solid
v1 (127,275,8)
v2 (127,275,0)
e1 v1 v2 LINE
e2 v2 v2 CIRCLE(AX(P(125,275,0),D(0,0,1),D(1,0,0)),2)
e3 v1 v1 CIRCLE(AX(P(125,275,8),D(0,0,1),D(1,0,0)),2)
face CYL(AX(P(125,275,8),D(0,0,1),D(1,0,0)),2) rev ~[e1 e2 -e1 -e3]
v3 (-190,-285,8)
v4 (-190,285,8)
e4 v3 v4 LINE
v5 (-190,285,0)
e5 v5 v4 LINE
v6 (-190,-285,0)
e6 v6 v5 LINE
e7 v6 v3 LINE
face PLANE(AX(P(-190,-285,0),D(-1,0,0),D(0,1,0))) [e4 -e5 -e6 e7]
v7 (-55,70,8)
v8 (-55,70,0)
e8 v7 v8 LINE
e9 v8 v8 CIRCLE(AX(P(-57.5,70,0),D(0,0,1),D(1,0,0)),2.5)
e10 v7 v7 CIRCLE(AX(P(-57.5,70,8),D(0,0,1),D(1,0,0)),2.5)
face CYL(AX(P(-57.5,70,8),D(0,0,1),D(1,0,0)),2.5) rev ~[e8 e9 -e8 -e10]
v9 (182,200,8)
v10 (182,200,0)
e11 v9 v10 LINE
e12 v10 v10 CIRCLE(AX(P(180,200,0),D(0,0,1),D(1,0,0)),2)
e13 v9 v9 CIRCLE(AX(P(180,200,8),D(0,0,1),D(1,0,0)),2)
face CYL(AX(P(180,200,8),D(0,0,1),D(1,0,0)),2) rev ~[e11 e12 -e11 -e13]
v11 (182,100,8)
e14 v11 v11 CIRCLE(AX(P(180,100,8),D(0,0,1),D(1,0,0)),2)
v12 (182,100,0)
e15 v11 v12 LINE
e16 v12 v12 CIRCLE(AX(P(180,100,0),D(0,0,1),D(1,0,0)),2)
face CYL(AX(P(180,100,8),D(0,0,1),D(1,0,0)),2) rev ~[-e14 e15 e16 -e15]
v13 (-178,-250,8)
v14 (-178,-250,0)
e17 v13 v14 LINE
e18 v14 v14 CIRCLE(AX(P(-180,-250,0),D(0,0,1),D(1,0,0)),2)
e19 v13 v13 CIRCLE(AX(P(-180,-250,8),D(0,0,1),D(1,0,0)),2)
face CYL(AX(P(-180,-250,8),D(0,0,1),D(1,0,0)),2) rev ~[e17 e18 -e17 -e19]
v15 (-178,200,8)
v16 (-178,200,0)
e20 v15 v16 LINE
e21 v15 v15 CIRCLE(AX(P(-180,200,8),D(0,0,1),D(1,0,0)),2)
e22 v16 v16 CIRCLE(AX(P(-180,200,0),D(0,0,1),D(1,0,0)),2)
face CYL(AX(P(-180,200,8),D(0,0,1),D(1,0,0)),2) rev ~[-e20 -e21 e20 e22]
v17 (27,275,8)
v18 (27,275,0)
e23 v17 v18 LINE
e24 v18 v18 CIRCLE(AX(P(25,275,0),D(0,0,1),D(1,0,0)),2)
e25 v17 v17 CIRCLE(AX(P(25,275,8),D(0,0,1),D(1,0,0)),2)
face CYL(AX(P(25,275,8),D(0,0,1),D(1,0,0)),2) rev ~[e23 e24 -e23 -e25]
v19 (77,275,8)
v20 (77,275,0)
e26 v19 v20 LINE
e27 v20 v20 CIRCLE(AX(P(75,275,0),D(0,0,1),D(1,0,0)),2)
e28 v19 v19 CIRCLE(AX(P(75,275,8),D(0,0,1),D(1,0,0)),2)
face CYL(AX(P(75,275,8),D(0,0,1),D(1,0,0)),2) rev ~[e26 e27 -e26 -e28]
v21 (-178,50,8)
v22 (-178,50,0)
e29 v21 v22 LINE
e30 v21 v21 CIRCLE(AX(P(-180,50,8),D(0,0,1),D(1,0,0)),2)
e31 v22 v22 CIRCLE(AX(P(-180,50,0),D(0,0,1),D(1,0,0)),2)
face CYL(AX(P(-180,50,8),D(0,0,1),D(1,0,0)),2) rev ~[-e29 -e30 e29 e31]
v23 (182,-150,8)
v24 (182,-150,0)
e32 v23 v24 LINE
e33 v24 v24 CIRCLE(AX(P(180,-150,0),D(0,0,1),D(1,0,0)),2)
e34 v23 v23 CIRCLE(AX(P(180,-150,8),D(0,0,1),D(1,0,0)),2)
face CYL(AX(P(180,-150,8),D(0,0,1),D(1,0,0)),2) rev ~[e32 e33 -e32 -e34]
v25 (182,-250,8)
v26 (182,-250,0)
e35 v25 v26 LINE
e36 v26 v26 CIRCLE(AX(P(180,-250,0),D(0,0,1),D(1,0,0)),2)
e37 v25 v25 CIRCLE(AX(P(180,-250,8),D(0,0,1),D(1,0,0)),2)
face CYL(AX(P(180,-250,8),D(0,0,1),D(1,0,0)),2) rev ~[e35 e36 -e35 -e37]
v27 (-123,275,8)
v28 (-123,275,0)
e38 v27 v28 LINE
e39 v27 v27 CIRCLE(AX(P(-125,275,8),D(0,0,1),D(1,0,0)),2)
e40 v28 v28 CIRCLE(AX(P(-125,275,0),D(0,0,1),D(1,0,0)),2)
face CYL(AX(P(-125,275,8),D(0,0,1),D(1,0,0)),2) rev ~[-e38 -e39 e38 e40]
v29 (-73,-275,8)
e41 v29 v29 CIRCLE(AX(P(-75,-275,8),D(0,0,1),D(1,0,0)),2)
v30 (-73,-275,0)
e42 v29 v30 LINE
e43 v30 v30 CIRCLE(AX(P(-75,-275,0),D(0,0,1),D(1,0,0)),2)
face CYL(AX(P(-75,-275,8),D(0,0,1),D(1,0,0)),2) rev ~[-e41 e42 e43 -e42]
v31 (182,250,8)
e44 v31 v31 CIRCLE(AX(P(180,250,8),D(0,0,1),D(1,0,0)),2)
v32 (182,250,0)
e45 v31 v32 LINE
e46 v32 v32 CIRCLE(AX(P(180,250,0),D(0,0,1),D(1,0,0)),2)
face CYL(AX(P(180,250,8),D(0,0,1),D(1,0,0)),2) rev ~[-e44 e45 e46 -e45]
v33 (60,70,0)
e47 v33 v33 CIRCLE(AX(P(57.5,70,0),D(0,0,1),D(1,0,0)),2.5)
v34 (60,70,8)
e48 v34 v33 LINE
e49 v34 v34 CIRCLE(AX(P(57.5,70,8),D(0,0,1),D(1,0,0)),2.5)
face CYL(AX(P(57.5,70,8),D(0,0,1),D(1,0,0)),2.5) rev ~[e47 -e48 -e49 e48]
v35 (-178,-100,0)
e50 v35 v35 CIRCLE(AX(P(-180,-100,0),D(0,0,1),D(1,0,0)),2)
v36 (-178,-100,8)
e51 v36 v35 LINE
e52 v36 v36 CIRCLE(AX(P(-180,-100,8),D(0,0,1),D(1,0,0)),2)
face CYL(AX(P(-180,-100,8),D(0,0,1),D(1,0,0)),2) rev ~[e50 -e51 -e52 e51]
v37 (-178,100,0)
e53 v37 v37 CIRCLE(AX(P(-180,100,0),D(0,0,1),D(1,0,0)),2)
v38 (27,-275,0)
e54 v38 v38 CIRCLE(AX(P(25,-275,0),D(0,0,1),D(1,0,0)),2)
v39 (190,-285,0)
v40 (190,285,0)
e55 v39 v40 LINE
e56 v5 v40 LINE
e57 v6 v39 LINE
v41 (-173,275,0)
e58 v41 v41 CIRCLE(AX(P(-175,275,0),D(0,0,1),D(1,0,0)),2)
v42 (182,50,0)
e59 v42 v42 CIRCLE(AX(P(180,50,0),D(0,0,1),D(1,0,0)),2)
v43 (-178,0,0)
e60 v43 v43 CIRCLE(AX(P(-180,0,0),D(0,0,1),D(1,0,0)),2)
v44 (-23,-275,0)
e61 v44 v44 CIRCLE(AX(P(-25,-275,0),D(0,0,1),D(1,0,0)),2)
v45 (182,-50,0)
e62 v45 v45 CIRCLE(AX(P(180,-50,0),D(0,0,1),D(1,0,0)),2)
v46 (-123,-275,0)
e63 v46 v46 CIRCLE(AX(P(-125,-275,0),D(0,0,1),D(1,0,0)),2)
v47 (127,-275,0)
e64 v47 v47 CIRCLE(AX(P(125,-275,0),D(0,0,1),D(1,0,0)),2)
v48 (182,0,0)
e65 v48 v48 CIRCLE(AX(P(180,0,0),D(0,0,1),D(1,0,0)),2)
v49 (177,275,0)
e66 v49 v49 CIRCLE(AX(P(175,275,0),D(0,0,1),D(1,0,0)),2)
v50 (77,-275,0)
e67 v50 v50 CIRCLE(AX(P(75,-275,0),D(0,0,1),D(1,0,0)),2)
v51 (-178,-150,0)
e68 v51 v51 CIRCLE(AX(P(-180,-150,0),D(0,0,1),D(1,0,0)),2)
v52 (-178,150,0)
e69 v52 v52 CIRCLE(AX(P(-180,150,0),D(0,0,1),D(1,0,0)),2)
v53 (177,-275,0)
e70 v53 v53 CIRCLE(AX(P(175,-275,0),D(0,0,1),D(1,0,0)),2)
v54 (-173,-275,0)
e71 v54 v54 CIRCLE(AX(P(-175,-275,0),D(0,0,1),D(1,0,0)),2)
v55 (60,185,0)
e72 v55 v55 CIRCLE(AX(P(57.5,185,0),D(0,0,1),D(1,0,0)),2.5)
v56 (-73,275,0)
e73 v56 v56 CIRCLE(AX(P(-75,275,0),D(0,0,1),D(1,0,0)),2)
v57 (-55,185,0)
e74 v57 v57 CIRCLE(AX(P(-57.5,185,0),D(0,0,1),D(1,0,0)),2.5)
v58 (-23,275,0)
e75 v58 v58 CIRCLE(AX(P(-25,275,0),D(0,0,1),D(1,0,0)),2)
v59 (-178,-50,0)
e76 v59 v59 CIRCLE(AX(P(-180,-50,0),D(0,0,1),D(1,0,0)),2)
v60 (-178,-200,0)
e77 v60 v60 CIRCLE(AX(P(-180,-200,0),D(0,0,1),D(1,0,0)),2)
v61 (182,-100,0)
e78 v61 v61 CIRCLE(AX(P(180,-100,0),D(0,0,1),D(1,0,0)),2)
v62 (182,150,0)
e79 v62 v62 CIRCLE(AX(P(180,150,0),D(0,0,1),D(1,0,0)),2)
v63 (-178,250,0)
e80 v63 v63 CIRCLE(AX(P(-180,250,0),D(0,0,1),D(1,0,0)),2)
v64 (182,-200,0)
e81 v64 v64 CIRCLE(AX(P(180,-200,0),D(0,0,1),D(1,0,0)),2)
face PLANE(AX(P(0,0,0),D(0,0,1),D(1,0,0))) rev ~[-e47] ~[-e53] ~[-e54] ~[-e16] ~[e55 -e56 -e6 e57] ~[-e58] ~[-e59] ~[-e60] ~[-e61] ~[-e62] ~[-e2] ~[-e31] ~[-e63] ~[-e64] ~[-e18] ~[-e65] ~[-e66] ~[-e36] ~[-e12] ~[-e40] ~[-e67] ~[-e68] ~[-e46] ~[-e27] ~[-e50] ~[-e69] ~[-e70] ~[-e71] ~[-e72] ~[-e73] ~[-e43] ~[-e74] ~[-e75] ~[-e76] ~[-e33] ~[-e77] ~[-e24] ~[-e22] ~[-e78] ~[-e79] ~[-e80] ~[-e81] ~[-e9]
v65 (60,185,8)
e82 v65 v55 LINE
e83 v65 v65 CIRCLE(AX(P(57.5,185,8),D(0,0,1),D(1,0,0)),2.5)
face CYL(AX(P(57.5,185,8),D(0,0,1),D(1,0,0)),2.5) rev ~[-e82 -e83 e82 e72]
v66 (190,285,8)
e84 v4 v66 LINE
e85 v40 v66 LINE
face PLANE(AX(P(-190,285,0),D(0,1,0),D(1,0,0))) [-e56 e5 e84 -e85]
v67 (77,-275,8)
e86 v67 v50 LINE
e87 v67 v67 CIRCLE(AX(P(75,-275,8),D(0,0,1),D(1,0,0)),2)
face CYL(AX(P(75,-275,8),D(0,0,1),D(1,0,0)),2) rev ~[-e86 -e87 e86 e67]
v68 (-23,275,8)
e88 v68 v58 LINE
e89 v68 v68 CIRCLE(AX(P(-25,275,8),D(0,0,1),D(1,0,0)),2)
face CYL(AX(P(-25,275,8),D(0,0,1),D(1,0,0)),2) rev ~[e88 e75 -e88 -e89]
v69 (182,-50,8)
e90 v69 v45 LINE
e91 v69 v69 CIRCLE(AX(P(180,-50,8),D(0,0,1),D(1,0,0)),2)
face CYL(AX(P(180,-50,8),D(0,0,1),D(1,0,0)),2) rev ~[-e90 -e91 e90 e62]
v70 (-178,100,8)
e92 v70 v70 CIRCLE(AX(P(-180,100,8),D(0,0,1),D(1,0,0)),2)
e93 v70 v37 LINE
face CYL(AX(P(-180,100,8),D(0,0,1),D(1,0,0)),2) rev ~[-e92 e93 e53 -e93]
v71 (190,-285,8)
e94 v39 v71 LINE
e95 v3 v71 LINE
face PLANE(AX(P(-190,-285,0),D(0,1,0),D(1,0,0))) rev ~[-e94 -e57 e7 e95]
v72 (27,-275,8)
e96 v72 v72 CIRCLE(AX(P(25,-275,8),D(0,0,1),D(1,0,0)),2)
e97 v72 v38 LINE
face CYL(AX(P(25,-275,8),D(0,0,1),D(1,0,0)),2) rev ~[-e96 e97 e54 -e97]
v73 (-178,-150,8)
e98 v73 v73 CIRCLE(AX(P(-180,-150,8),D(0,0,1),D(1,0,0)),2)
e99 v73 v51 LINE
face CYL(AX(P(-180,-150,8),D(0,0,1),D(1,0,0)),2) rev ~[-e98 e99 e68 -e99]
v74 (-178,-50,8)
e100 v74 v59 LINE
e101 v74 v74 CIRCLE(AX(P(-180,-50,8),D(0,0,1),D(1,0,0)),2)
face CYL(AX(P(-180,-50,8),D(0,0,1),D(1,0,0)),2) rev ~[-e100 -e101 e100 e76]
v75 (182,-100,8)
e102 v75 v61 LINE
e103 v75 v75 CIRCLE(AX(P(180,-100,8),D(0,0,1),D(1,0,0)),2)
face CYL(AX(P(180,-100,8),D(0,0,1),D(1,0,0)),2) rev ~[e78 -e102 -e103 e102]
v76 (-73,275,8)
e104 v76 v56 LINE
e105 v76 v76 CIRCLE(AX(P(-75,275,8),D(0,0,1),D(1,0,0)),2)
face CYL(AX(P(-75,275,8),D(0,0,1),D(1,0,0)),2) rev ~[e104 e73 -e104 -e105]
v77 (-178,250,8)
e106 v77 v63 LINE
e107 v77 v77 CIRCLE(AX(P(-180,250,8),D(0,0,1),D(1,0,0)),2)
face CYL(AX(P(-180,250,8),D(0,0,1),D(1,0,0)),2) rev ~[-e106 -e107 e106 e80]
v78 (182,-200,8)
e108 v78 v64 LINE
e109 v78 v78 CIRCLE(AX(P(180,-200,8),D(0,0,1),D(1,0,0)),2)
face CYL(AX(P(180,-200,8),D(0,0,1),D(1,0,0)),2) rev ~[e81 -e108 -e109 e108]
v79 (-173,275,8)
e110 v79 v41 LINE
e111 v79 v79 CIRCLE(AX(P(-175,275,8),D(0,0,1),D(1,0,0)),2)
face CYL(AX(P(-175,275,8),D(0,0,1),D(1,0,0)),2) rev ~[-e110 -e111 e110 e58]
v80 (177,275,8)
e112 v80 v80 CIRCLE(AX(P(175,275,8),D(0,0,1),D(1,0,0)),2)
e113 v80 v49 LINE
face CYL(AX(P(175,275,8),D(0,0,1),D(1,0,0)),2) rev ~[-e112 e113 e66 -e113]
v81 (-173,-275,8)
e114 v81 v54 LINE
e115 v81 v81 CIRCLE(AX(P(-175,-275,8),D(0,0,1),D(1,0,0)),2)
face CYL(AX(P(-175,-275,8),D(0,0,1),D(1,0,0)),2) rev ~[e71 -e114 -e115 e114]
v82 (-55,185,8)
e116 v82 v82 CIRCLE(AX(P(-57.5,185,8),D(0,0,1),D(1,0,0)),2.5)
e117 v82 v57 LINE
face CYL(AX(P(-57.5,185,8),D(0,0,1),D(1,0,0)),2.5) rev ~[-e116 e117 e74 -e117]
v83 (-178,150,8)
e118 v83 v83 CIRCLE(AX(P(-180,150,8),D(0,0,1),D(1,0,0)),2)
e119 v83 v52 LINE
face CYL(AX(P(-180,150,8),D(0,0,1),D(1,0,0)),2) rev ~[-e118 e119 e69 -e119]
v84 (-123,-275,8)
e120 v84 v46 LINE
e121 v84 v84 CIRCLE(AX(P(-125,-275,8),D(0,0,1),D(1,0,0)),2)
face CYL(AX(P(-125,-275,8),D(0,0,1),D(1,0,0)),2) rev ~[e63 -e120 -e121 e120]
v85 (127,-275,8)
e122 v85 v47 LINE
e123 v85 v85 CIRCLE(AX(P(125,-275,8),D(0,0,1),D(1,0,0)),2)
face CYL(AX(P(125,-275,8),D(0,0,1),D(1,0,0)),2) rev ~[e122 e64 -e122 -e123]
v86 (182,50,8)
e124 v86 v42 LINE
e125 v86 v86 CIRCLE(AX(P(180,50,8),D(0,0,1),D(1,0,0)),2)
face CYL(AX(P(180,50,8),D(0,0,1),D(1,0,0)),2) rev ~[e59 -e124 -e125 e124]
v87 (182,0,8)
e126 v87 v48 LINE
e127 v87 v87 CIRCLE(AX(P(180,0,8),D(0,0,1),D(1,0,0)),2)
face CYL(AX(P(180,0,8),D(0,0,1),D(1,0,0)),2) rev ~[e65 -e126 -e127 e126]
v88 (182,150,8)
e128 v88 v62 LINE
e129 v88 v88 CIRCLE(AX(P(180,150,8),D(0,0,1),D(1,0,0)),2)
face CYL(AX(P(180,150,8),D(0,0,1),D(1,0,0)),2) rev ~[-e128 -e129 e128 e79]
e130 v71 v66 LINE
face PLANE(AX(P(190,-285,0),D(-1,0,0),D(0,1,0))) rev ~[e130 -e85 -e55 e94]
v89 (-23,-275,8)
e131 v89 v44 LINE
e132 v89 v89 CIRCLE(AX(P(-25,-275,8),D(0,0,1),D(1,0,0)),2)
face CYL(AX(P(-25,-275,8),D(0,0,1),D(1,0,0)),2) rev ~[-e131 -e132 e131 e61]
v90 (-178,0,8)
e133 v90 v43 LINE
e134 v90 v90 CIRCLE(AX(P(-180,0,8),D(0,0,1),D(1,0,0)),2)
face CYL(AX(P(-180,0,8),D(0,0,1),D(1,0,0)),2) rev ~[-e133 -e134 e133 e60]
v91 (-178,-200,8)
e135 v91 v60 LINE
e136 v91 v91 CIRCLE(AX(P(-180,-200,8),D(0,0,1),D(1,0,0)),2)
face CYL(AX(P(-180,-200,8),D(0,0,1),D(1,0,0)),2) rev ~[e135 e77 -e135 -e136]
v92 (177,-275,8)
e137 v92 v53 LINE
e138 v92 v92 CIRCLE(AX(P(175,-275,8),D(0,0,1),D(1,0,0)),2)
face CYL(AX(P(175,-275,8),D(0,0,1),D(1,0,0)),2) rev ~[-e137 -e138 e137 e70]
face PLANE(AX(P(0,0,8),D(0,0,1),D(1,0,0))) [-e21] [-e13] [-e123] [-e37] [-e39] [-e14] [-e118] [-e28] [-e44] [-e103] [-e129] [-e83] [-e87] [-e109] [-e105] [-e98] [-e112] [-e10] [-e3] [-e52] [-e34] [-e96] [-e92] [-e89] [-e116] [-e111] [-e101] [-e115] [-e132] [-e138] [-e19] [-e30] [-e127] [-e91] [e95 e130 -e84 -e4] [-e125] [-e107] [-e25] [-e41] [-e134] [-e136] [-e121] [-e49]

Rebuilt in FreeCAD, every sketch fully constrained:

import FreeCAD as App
import Part
import Sketcher

V = App.Vector


def add_polygon(sketch, points):
    """Adds a closed chain of lines whose ends are joined by coincident constraints."""
    first, n = sketch.GeometryCount, len(points)
    for a, b in zip(points, points[1:] + points[:1]):
        sketch.addGeometry(Part.LineSegment(App.Vector(*a, 0), App.Vector(*b, 0)), False)
    for i in range(n):
        sketch.addConstraint(Sketcher.Constraint("Coincident", first + i, 2, first + (i + 1) % n, 1))

doc = App.newDocument("Part")
body = doc.addObject("PartDesign::Body", "Body")

sketch1 = body.newObject("Sketcher::SketchObject", "Sketch")
sketch1.AttachmentSupport = (doc.getObject("XY_Plane"), [""])
sketch1.MapMode = "FlatFace"
add_polygon(sketch1, [(-190, 285), (-190, -285), (190, -285), (190, 285)])
sketch1.addConstraint([
    Sketcher.Constraint("Vertical", 0),
    Sketcher.Constraint("Horizontal", 1),
    Sketcher.Constraint("Vertical", 2),
    Sketcher.Constraint("Horizontal", 3),
    Sketcher.Constraint("Symmetric", 0, 2, 2, 2, -1, 1),
    Sketcher.Constraint("DistanceX", 1, 1, 1, 2, 380.0),
    Sketcher.Constraint("DistanceY", 0, 2, 0, 1, 570.0),
])
pad1 = body.newObject("PartDesign::Pad", "Pad")
pad1.Profile = sketch1
pad1.Length = 8

sketch2 = body.newObject("Sketcher::SketchObject", "Sketch001")
sketch2.AttachmentSupport = (doc.getObject("XY_Plane"), [""])
sketch2.MapMode = "FlatFace"
sketch2.AttachmentOffset = App.Placement(V(0, 0, 8), App.Rotation())
sketch2.addGeometry(Part.Circle(V(-180, 250, 0), V(0, 0, 1), 2), False)
sketch2.addConstraint([
    Sketcher.Constraint("Diameter", 0, 4.0),
    Sketcher.Constraint("DistanceX", 0, 3, -1, 1, 180.0),
    Sketcher.Constraint("DistanceY", -1, 1, 0, 3, 250.0),
])
pocket1 = body.newObject("PartDesign::Pocket", "Pocket")
pocket1.Profile = sketch2
pocket1.Type = "UpToFirst"

sketch3 = body.newObject("Sketcher::SketchObject", "Sketch002")
sketch3.AttachmentSupport = (doc.getObject("XY_Plane"), [""])
sketch3.MapMode = "FlatFace"
sketch3.AttachmentOffset = App.Placement(V(0, 0, 8), App.Rotation())
sketch3.addGeometry(Part.Circle(V(-180, 200, 0), V(0, 0, 1), 2), False)
sketch3.addConstraint([
    Sketcher.Constraint("Diameter", 0, 4.0),
    Sketcher.Constraint("DistanceX", 0, 3, -1, 1, 180.0),
    Sketcher.Constraint("DistanceY", -1, 1, 0, 3, 200.0),
])
pocket2 = body.newObject("PartDesign::Pocket", "Pocket001")
pocket2.Profile = sketch3
pocket2.Type = "UpToFirst"

sketch4 = body.newObject("Sketcher::SketchObject", "Sketch003")
sketch4.AttachmentSupport = (doc.getObject("XY_Plane"), [""])
sketch4.MapMode = "FlatFace"
sketch4.AttachmentOffset = App.Placement(V(0, 0, 8), App.Rotation())
sketch4.addGeometry(Part.Circle(V(-180, 150, 0), V(0, 0, 1), 2), False)
sketch4.addConstraint([
    Sketcher.Constraint("Diameter", 0, 4.0),
    Sketcher.Constraint("DistanceX", 0, 3, -1, 1, 180.0),
    Sketcher.Constraint("DistanceY", -1, 1, 0, 3, 150.0),
])
pocket3 = body.newObject("PartDesign::Pocket", "Pocket002")
pocket3.Profile = sketch4
pocket3.Type = "UpToFirst"

sketch5 = body.newObject("Sketcher::SketchObject", "Sketch004")
sketch5.AttachmentSupport = (doc.getObject("XY_Plane"), [""])
sketch5.MapMode = "FlatFace"
sketch5.AttachmentOffset = App.Placement(V(0, 0, 8), App.Rotation())
sketch5.addGeometry(Part.Circle(V(-180, 100, 0), V(0, 0, 1), 2), False)
sketch5.addConstraint([
    Sketcher.Constraint("Diameter", 0, 4.0),
    Sketcher.Constraint("DistanceX", 0, 3, -1, 1, 180.0),
    Sketcher.Constraint("DistanceY", -1, 1, 0, 3, 100.0),
])
pocket4 = body.newObject("PartDesign::Pocket", "Pocket003")
pocket4.Profile = sketch5
pocket4.Type = "UpToFirst"

sketch6 = body.newObject("Sketcher::SketchObject", "Sketch005")
sketch6.AttachmentSupport = (doc.getObject("XY_Plane"), [""])
sketch6.MapMode = "FlatFace"
sketch6.AttachmentOffset = App.Placement(V(0, 0, 8), App.Rotation())
sketch6.addGeometry(Part.Circle(V(-180, 50, 0), V(0, 0, 1), 2), False)
sketch6.addConstraint([
    Sketcher.Constraint("Diameter", 0, 4.0),
    Sketcher.Constraint("DistanceX", 0, 3, -1, 1, 180.0),
    Sketcher.Constraint("DistanceY", -1, 1, 0, 3, 50.0),
])
pocket5 = body.newObject("PartDesign::Pocket", "Pocket004")
pocket5.Profile = sketch6
pocket5.Type = "UpToFirst"

sketch7 = body.newObject("Sketcher::SketchObject", "Sketch006")
sketch7.AttachmentSupport = (doc.getObject("XY_Plane"), [""])
sketch7.MapMode = "FlatFace"
sketch7.AttachmentOffset = App.Placement(V(0, 0, 8), App.Rotation())
sketch7.addGeometry(Part.Circle(V(-180, 0, 0), V(0, 0, 1), 2), False)
sketch7.addConstraint([
    Sketcher.Constraint("PointOnObject", 0, 3, -1),
    Sketcher.Constraint("Diameter", 0, 4.0),
    Sketcher.Constraint("DistanceX", 0, 3, -1, 1, 180.0),
])
pocket6 = body.newObject("PartDesign::Pocket", "Pocket005")
pocket6.Profile = sketch7
pocket6.Type = "UpToFirst"

sketch8 = body.newObject("Sketcher::SketchObject", "Sketch007")
sketch8.AttachmentSupport = (doc.getObject("XY_Plane"), [""])
sketch8.MapMode = "FlatFace"
sketch8.AttachmentOffset = App.Placement(V(0, 0, 8), App.Rotation())
sketch8.addGeometry(Part.Circle(V(-180, -50, 0), V(0, 0, 1), 2), False)
sketch8.addConstraint([
    Sketcher.Constraint("Diameter", 0, 4.0),
    Sketcher.Constraint("DistanceX", 0, 3, -1, 1, 180.0),
    Sketcher.Constraint("DistanceY", 0, 3, -1, 1, 50.0),
])
pocket7 = body.newObject("PartDesign::Pocket", "Pocket006")
pocket7.Profile = sketch8
pocket7.Type = "UpToFirst"

sketch9 = body.newObject("Sketcher::SketchObject", "Sketch008")
sketch9.AttachmentSupport = (doc.getObject("XY_Plane"), [""])
sketch9.MapMode = "FlatFace"
sketch9.AttachmentOffset = App.Placement(V(0, 0, 8), App.Rotation())
sketch9.addGeometry(Part.Circle(V(-180, -100, 0), V(0, 0, 1), 2), False)
sketch9.addConstraint([
    Sketcher.Constraint("Diameter", 0, 4.0),
    Sketcher.Constraint("DistanceX", 0, 3, -1, 1, 180.0),
    Sketcher.Constraint("DistanceY", 0, 3, -1, 1, 100.0),
])
pocket8 = body.newObject("PartDesign::Pocket", "Pocket007")
pocket8.Profile = sketch9
pocket8.Type = "UpToFirst"

sketch10 = body.newObject("Sketcher::SketchObject", "Sketch009")
sketch10.AttachmentSupport = (doc.getObject("XY_Plane"), [""])
sketch10.MapMode = "FlatFace"
sketch10.AttachmentOffset = App.Placement(V(0, 0, 8), App.Rotation())
sketch10.addGeometry(Part.Circle(V(-180, -150, 0), V(0, 0, 1), 2), False)
sketch10.addConstraint([
    Sketcher.Constraint("Diameter", 0, 4.0),
    Sketcher.Constraint("DistanceX", 0, 3, -1, 1, 180.0),
    Sketcher.Constraint("DistanceY", 0, 3, -1, 1, 150.0),
])
pocket9 = body.newObject("PartDesign::Pocket", "Pocket008")
pocket9.Profile = sketch10
pocket9.Type = "UpToFirst"

sketch11 = body.newObject("Sketcher::SketchObject", "Sketch010")
sketch11.AttachmentSupport = (doc.getObject("XY_Plane"), [""])
sketch11.MapMode = "FlatFace"
sketch11.AttachmentOffset = App.Placement(V(0, 0, 8), App.Rotation())
sketch11.addGeometry(Part.Circle(V(-180, -200, 0), V(0, 0, 1), 2), False)
sketch11.addConstraint([
    Sketcher.Constraint("Diameter", 0, 4.0),
    Sketcher.Constraint("DistanceX", 0, 3, -1, 1, 180.0),
    Sketcher.Constraint("DistanceY", 0, 3, -1, 1, 200.0),
])
pocket10 = body.newObject("PartDesign::Pocket", "Pocket009")
pocket10.Profile = sketch11
pocket10.Type = "UpToFirst"

sketch12 = body.newObject("Sketcher::SketchObject", "Sketch011")
sketch12.AttachmentSupport = (doc.getObject("XY_Plane"), [""])
sketch12.MapMode = "FlatFace"
sketch12.AttachmentOffset = App.Placement(V(0, 0, 8), App.Rotation())
sketch12.addGeometry(Part.Circle(V(-180, -250, 0), V(0, 0, 1), 2), False)
sketch12.addConstraint([
    Sketcher.Constraint("Diameter", 0, 4.0),
    Sketcher.Constraint("DistanceX", 0, 3, -1, 1, 180.0),
    Sketcher.Constraint("DistanceY", 0, 3, -1, 1, 250.0),
])
pocket11 = body.newObject("PartDesign::Pocket", "Pocket010")
pocket11.Profile = sketch12
pocket11.Type = "UpToFirst"

sketch13 = body.newObject("Sketcher::SketchObject", "Sketch012")
sketch13.AttachmentSupport = (doc.getObject("XY_Plane"), [""])
sketch13.MapMode = "FlatFace"
sketch13.AttachmentOffset = App.Placement(V(0, 0, 8), App.Rotation())
sketch13.addGeometry(Part.Circle(V(180, -250, 0), V(0, 0, 1), 2), False)
sketch13.addConstraint([
    Sketcher.Constraint("Diameter", 0, 4.0),
    Sketcher.Constraint("DistanceX", -1, 1, 0, 3, 180.0),
    Sketcher.Constraint("DistanceY", 0, 3, -1, 1, 250.0),
])
pocket12 = body.newObject("PartDesign::Pocket", "Pocket011")
pocket12.Profile = sketch13
pocket12.Type = "UpToFirst"

sketch14 = body.newObject("Sketcher::SketchObject", "Sketch013")
sketch14.AttachmentSupport = (doc.getObject("XY_Plane"), [""])
sketch14.MapMode = "FlatFace"
sketch14.AttachmentOffset = App.Placement(V(0, 0, 8), App.Rotation())
sketch14.addGeometry(Part.Circle(V(180, -200, 0), V(0, 0, 1), 2), False)
sketch14.addConstraint([
    Sketcher.Constraint("Diameter", 0, 4.0),
    Sketcher.Constraint("DistanceX", -1, 1, 0, 3, 180.0),
    Sketcher.Constraint("DistanceY", 0, 3, -1, 1, 200.0),
])
pocket13 = body.newObject("PartDesign::Pocket", "Pocket012")
pocket13.Profile = sketch14
pocket13.Type = "UpToFirst"

sketch15 = body.newObject("Sketcher::SketchObject", "Sketch014")
sketch15.AttachmentSupport = (doc.getObject("XY_Plane"), [""])
sketch15.MapMode = "FlatFace"
sketch15.AttachmentOffset = App.Placement(V(0, 0, 8), App.Rotation())
sketch15.addGeometry(Part.Circle(V(180, -150, 0), V(0, 0, 1), 2), False)
sketch15.addConstraint([
    Sketcher.Constraint("Diameter", 0, 4.0),
    Sketcher.Constraint("DistanceX", -1, 1, 0, 3, 180.0),
    Sketcher.Constraint("DistanceY", 0, 3, -1, 1, 150.0),
])
pocket14 = body.newObject("PartDesign::Pocket", "Pocket013")
pocket14.Profile = sketch15
pocket14.Type = "UpToFirst"

sketch16 = body.newObject("Sketcher::SketchObject", "Sketch015")
sketch16.AttachmentSupport = (doc.getObject("XY_Plane"), [""])
sketch16.MapMode = "FlatFace"
sketch16.AttachmentOffset = App.Placement(V(0, 0, 8), App.Rotation())
sketch16.addGeometry(Part.Circle(V(180, -100, 0), V(0, 0, 1), 2), False)
sketch16.addConstraint([
    Sketcher.Constraint("Diameter", 0, 4.0),
    Sketcher.Constraint("DistanceX", -1, 1, 0, 3, 180.0),
    Sketcher.Constraint("DistanceY", 0, 3, -1, 1, 100.0),
])
pocket15 = body.newObject("PartDesign::Pocket", "Pocket014")
pocket15.Profile = sketch16
pocket15.Type = "UpToFirst"

sketch17 = body.newObject("Sketcher::SketchObject", "Sketch016")
sketch17.AttachmentSupport = (doc.getObject("XY_Plane"), [""])
sketch17.MapMode = "FlatFace"
sketch17.AttachmentOffset = App.Placement(V(0, 0, 8), App.Rotation())
sketch17.addGeometry(Part.Circle(V(180, -50, 0), V(0, 0, 1), 2), False)
sketch17.addConstraint([
    Sketcher.Constraint("Diameter", 0, 4.0),
    Sketcher.Constraint("DistanceX", -1, 1, 0, 3, 180.0),
    Sketcher.Constraint("DistanceY", 0, 3, -1, 1, 50.0),
])
pocket16 = body.newObject("PartDesign::Pocket", "Pocket015")
pocket16.Profile = sketch17
pocket16.Type = "UpToFirst"

sketch18 = body.newObject("Sketcher::SketchObject", "Sketch017")
sketch18.AttachmentSupport = (doc.getObject("XY_Plane"), [""])
sketch18.MapMode = "FlatFace"
sketch18.AttachmentOffset = App.Placement(V(0, 0, 8), App.Rotation())
sketch18.addGeometry(Part.Circle(V(180, 0, 0), V(0, 0, 1), 2), False)
sketch18.addConstraint([
    Sketcher.Constraint("PointOnObject", 0, 3, -1),
    Sketcher.Constraint("Diameter", 0, 4.0),
    Sketcher.Constraint("DistanceX", -1, 1, 0, 3, 180.0),
])
pocket17 = body.newObject("PartDesign::Pocket", "Pocket016")
pocket17.Profile = sketch18
pocket17.Type = "UpToFirst"

sketch19 = body.newObject("Sketcher::SketchObject", "Sketch018")
sketch19.AttachmentSupport = (doc.getObject("XY_Plane"), [""])
sketch19.MapMode = "FlatFace"
sketch19.AttachmentOffset = App.Placement(V(0, 0, 8), App.Rotation())
sketch19.addGeometry(Part.Circle(V(180, 50, 0), V(0, 0, 1), 2), False)
sketch19.addConstraint([
    Sketcher.Constraint("Diameter", 0, 4.0),
    Sketcher.Constraint("DistanceX", -1, 1, 0, 3, 180.0),
    Sketcher.Constraint("DistanceY", -1, 1, 0, 3, 50.0),
])
pocket18 = body.newObject("PartDesign::Pocket", "Pocket017")
pocket18.Profile = sketch19
pocket18.Type = "UpToFirst"

sketch20 = body.newObject("Sketcher::SketchObject", "Sketch019")
sketch20.AttachmentSupport = (doc.getObject("XY_Plane"), [""])
sketch20.MapMode = "FlatFace"
sketch20.AttachmentOffset = App.Placement(V(0, 0, 8), App.Rotation())
sketch20.addGeometry(Part.Circle(V(180, 100, 0), V(0, 0, 1), 2), False)
sketch20.addConstraint([
    Sketcher.Constraint("Diameter", 0, 4.0),
    Sketcher.Constraint("DistanceX", -1, 1, 0, 3, 180.0),
    Sketcher.Constraint("DistanceY", -1, 1, 0, 3, 100.0),
])
pocket19 = body.newObject("PartDesign::Pocket", "Pocket018")
pocket19.Profile = sketch20
pocket19.Type = "UpToFirst"

sketch21 = body.newObject("Sketcher::SketchObject", "Sketch020")
sketch21.AttachmentSupport = (doc.getObject("XY_Plane"), [""])
sketch21.MapMode = "FlatFace"
sketch21.AttachmentOffset = App.Placement(V(0, 0, 8), App.Rotation())
sketch21.addGeometry(Part.Circle(V(180, 150, 0), V(0, 0, 1), 2), False)
sketch21.addConstraint([
    Sketcher.Constraint("Diameter", 0, 4.0),
    Sketcher.Constraint("DistanceX", -1, 1, 0, 3, 180.0),
    Sketcher.Constraint("DistanceY", -1, 1, 0, 3, 150.0),
])
pocket20 = body.newObject("PartDesign::Pocket", "Pocket019")
pocket20.Profile = sketch21
pocket20.Type = "UpToFirst"

sketch22 = body.newObject("Sketcher::SketchObject", "Sketch021")
sketch22.AttachmentSupport = (doc.getObject("XY_Plane"), [""])
sketch22.MapMode = "FlatFace"
sketch22.AttachmentOffset = App.Placement(V(0, 0, 8), App.Rotation())
sketch22.addGeometry(Part.Circle(V(180, 200, 0), V(0, 0, 1), 2), False)
sketch22.addConstraint([
    Sketcher.Constraint("Diameter", 0, 4.0),
    Sketcher.Constraint("DistanceX", -1, 1, 0, 3, 180.0),
    Sketcher.Constraint("DistanceY", -1, 1, 0, 3, 200.0),
])
pocket21 = body.newObject("PartDesign::Pocket", "Pocket020")
pocket21.Profile = sketch22
pocket21.Type = "UpToFirst"

sketch23 = body.newObject("Sketcher::SketchObject", "Sketch022")
sketch23.AttachmentSupport = (doc.getObject("XY_Plane"), [""])
sketch23.MapMode = "FlatFace"
sketch23.AttachmentOffset = App.Placement(V(0, 0, 8), App.Rotation())
sketch23.addGeometry(Part.Circle(V(180, 250, 0), V(0, 0, 1), 2), False)
sketch23.addConstraint([
    Sketcher.Constraint("Diameter", 0, 4.0),
    Sketcher.Constraint("DistanceX", -1, 1, 0, 3, 180.0),
    Sketcher.Constraint("DistanceY", -1, 1, 0, 3, 250.0),
])
pocket22 = body.newObject("PartDesign::Pocket", "Pocket021")
pocket22.Profile = sketch23
pocket22.Type = "UpToFirst"

sketch24 = body.newObject("Sketcher::SketchObject", "Sketch023")
sketch24.AttachmentSupport = (doc.getObject("XY_Plane"), [""])
sketch24.MapMode = "FlatFace"
sketch24.AttachmentOffset = App.Placement(V(0, 0, 8), App.Rotation())
sketch24.addGeometry(Part.Circle(V(-57.5, 185, 0), V(0, 0, 1), 2.5), False)
sketch24.addConstraint([
    Sketcher.Constraint("Diameter", 0, 5.0),
    Sketcher.Constraint("DistanceY", -1, 1, 0, 3, 185.0),
    Sketcher.Constraint("DistanceX", 0, 3, -1, 1, 57.5),
])
pocket23 = body.newObject("PartDesign::Pocket", "Pocket022")
pocket23.Profile = sketch24
pocket23.Type = "UpToFirst"

sketch25 = body.newObject("Sketcher::SketchObject", "Sketch024")
sketch25.AttachmentSupport = (doc.getObject("XY_Plane"), [""])
sketch25.MapMode = "FlatFace"
sketch25.AttachmentOffset = App.Placement(V(0, 0, 8), App.Rotation())
sketch25.addGeometry(Part.Circle(V(57.5, 185, 0), V(0, 0, 1), 2.5), False)
sketch25.addConstraint([
    Sketcher.Constraint("Diameter", 0, 5.0),
    Sketcher.Constraint("DistanceY", -1, 1, 0, 3, 185.0),
    Sketcher.Constraint("DistanceX", -1, 1, 0, 3, 57.5),
])
pocket24 = body.newObject("PartDesign::Pocket", "Pocket023")
pocket24.Profile = sketch25
pocket24.Type = "UpToFirst"

sketch26 = body.newObject("Sketcher::SketchObject", "Sketch025")
sketch26.AttachmentSupport = (doc.getObject("XY_Plane"), [""])
sketch26.MapMode = "FlatFace"
sketch26.AttachmentOffset = App.Placement(V(0, 0, 8), App.Rotation())
sketch26.addGeometry(Part.Circle(V(57.5, 70, 0), V(0, 0, 1), 2.5), False)
sketch26.addConstraint([
    Sketcher.Constraint("Diameter", 0, 5.0),
    Sketcher.Constraint("DistanceY", -1, 1, 0, 3, 70.0),
    Sketcher.Constraint("DistanceX", -1, 1, 0, 3, 57.5),
])
pocket25 = body.newObject("PartDesign::Pocket", "Pocket024")
pocket25.Profile = sketch26
pocket25.Type = "UpToFirst"

sketch27 = body.newObject("Sketcher::SketchObject", "Sketch026")
sketch27.AttachmentSupport = (doc.getObject("XY_Plane"), [""])
sketch27.MapMode = "FlatFace"
sketch27.AttachmentOffset = App.Placement(V(0, 0, 8), App.Rotation())
sketch27.addGeometry(Part.Circle(V(-57.5, 70, 0), V(0, 0, 1), 2.5), False)
sketch27.addConstraint([
    Sketcher.Constraint("Diameter", 0, 5.0),
    Sketcher.Constraint("DistanceY", -1, 1, 0, 3, 70.0),
    Sketcher.Constraint("DistanceX", 0, 3, -1, 1, 57.5),
])
pocket26 = body.newObject("PartDesign::Pocket", "Pocket025")
pocket26.Profile = sketch27
pocket26.Type = "UpToFirst"

sketch28 = body.newObject("Sketcher::SketchObject", "Sketch027")
sketch28.AttachmentSupport = (doc.getObject("XY_Plane"), [""])
sketch28.MapMode = "FlatFace"
sketch28.AttachmentOffset = App.Placement(V(0, 0, 8), App.Rotation())
sketch28.addGeometry(Part.Circle(V(-175, 275, 0), V(0, 0, 1), 2), False)
sketch28.addConstraint([
    Sketcher.Constraint("Diameter", 0, 4.0),
    Sketcher.Constraint("DistanceX", 0, 3, -1, 1, 175.0),
    Sketcher.Constraint("DistanceY", -1, 1, 0, 3, 275.0),
])
pocket27 = body.newObject("PartDesign::Pocket", "Pocket026")
pocket27.Profile = sketch28
pocket27.Type = "UpToFirst"

sketch29 = body.newObject("Sketcher::SketchObject", "Sketch028")
sketch29.AttachmentSupport = (doc.getObject("XY_Plane"), [""])
sketch29.MapMode = "FlatFace"
sketch29.AttachmentOffset = App.Placement(V(0, 0, 8), App.Rotation())
sketch29.addGeometry(Part.Circle(V(-125, 275, 0), V(0, 0, 1), 2), False)
sketch29.addConstraint([
    Sketcher.Constraint("Diameter", 0, 4.0),
    Sketcher.Constraint("DistanceX", 0, 3, -1, 1, 125.0),
    Sketcher.Constraint("DistanceY", -1, 1, 0, 3, 275.0),
])
pocket28 = body.newObject("PartDesign::Pocket", "Pocket027")
pocket28.Profile = sketch29
pocket28.Type = "UpToFirst"

sketch30 = body.newObject("Sketcher::SketchObject", "Sketch029")
sketch30.AttachmentSupport = (doc.getObject("XY_Plane"), [""])
sketch30.MapMode = "FlatFace"
sketch30.AttachmentOffset = App.Placement(V(0, 0, 8), App.Rotation())
sketch30.addGeometry(Part.Circle(V(-75, 275, 0), V(0, 0, 1), 2), False)
sketch30.addConstraint([
    Sketcher.Constraint("Diameter", 0, 4.0),
    Sketcher.Constraint("DistanceX", 0, 3, -1, 1, 75.0),
    Sketcher.Constraint("DistanceY", -1, 1, 0, 3, 275.0),
])
pocket29 = body.newObject("PartDesign::Pocket", "Pocket028")
pocket29.Profile = sketch30
pocket29.Type = "UpToFirst"

sketch31 = body.newObject("Sketcher::SketchObject", "Sketch030")
sketch31.AttachmentSupport = (doc.getObject("XY_Plane"), [""])
sketch31.MapMode = "FlatFace"
sketch31.AttachmentOffset = App.Placement(V(0, 0, 8), App.Rotation())
sketch31.addGeometry(Part.Circle(V(-25, 275, 0), V(0, 0, 1), 2), False)
sketch31.addConstraint([
    Sketcher.Constraint("Diameter", 0, 4.0),
    Sketcher.Constraint("DistanceX", 0, 3, -1, 1, 25.0),
    Sketcher.Constraint("DistanceY", -1, 1, 0, 3, 275.0),
])
pocket30 = body.newObject("PartDesign::Pocket", "Pocket029")
pocket30.Profile = sketch31
pocket30.Type = "UpToFirst"

sketch32 = body.newObject("Sketcher::SketchObject", "Sketch031")
sketch32.AttachmentSupport = (doc.getObject("XY_Plane"), [""])
sketch32.MapMode = "FlatFace"
sketch32.AttachmentOffset = App.Placement(V(0, 0, 8), App.Rotation())
sketch32.addGeometry(Part.Circle(V(25, 275, 0), V(0, 0, 1), 2), False)
sketch32.addConstraint([
    Sketcher.Constraint("Diameter", 0, 4.0),
    Sketcher.Constraint("DistanceX", -1, 1, 0, 3, 25.0),
    Sketcher.Constraint("DistanceY", -1, 1, 0, 3, 275.0),
])
pocket31 = body.newObject("PartDesign::Pocket", "Pocket030")
pocket31.Profile = sketch32
pocket31.Type = "UpToFirst"

sketch33 = body.newObject("Sketcher::SketchObject", "Sketch032")
sketch33.AttachmentSupport = (doc.getObject("XY_Plane"), [""])
sketch33.MapMode = "FlatFace"
sketch33.AttachmentOffset = App.Placement(V(0, 0, 8), App.Rotation())
sketch33.addGeometry(Part.Circle(V(75, 275, 0), V(0, 0, 1), 2), False)
sketch33.addConstraint([
    Sketcher.Constraint("Diameter", 0, 4.0),
    Sketcher.Constraint("DistanceX", -1, 1, 0, 3, 75.0),
    Sketcher.Constraint("DistanceY", -1, 1, 0, 3, 275.0),
])
pocket32 = body.newObject("PartDesign::Pocket", "Pocket031")
pocket32.Profile = sketch33
pocket32.Type = "UpToFirst"

sketch34 = body.newObject("Sketcher::SketchObject", "Sketch033")
sketch34.AttachmentSupport = (doc.getObject("XY_Plane"), [""])
sketch34.MapMode = "FlatFace"
sketch34.AttachmentOffset = App.Placement(V(0, 0, 8), App.Rotation())
sketch34.addGeometry(Part.Circle(V(125, 275, 0), V(0, 0, 1), 2), False)
sketch34.addConstraint([
    Sketcher.Constraint("Diameter", 0, 4.0),
    Sketcher.Constraint("DistanceX", -1, 1, 0, 3, 125.0),
    Sketcher.Constraint("DistanceY", -1, 1, 0, 3, 275.0),
])
pocket33 = body.newObject("PartDesign::Pocket", "Pocket032")
pocket33.Profile = sketch34
pocket33.Type = "UpToFirst"

sketch35 = body.newObject("Sketcher::SketchObject", "Sketch034")
sketch35.AttachmentSupport = (doc.getObject("XY_Plane"), [""])
sketch35.MapMode = "FlatFace"
sketch35.AttachmentOffset = App.Placement(V(0, 0, 8), App.Rotation())
sketch35.addGeometry(Part.Circle(V(175, 275, 0), V(0, 0, 1), 2), False)
sketch35.addConstraint([
    Sketcher.Constraint("Diameter", 0, 4.0),
    Sketcher.Constraint("DistanceX", -1, 1, 0, 3, 175.0),
    Sketcher.Constraint("DistanceY", -1, 1, 0, 3, 275.0),
])
pocket34 = body.newObject("PartDesign::Pocket", "Pocket033")
pocket34.Profile = sketch35
pocket34.Type = "UpToFirst"

sketch36 = body.newObject("Sketcher::SketchObject", "Sketch035")
sketch36.AttachmentSupport = (doc.getObject("XY_Plane"), [""])
sketch36.MapMode = "FlatFace"
sketch36.AttachmentOffset = App.Placement(V(0, 0, 8), App.Rotation())
sketch36.addGeometry(Part.Circle(V(175, -275, 0), V(0, 0, 1), 2), False)
sketch36.addConstraint([
    Sketcher.Constraint("Diameter", 0, 4.0),
    Sketcher.Constraint("DistanceX", -1, 1, 0, 3, 175.0),
    Sketcher.Constraint("DistanceY", 0, 3, -1, 1, 275.0),
])
pocket35 = body.newObject("PartDesign::Pocket", "Pocket034")
pocket35.Profile = sketch36
pocket35.Type = "UpToFirst"

sketch37 = body.newObject("Sketcher::SketchObject", "Sketch036")
sketch37.AttachmentSupport = (doc.getObject("XY_Plane"), [""])
sketch37.MapMode = "FlatFace"
sketch37.AttachmentOffset = App.Placement(V(0, 0, 8), App.Rotation())
sketch37.addGeometry(Part.Circle(V(125, -275, 0), V(0, 0, 1), 2), False)
sketch37.addConstraint([
    Sketcher.Constraint("Diameter", 0, 4.0),
    Sketcher.Constraint("DistanceX", -1, 1, 0, 3, 125.0),
    Sketcher.Constraint("DistanceY", 0, 3, -1, 1, 275.0),
])
pocket36 = body.newObject("PartDesign::Pocket", "Pocket035")
pocket36.Profile = sketch37
pocket36.Type = "UpToFirst"

sketch38 = body.newObject("Sketcher::SketchObject", "Sketch037")
sketch38.AttachmentSupport = (doc.getObject("XY_Plane"), [""])
sketch38.MapMode = "FlatFace"
sketch38.AttachmentOffset = App.Placement(V(0, 0, 8), App.Rotation())
sketch38.addGeometry(Part.Circle(V(75, -275, 0), V(0, 0, 1), 2), False)
sketch38.addConstraint([
    Sketcher.Constraint("Diameter", 0, 4.0),
    Sketcher.Constraint("DistanceX", -1, 1, 0, 3, 75.0),
    Sketcher.Constraint("DistanceY", 0, 3, -1, 1, 275.0),
])
pocket37 = body.newObject("PartDesign::Pocket", "Pocket036")
pocket37.Profile = sketch38
pocket37.Type = "UpToFirst"

sketch39 = body.newObject("Sketcher::SketchObject", "Sketch038")
sketch39.AttachmentSupport = (doc.getObject("XY_Plane"), [""])
sketch39.MapMode = "FlatFace"
sketch39.AttachmentOffset = App.Placement(V(0, 0, 8), App.Rotation())
sketch39.addGeometry(Part.Circle(V(25, -275, 0), V(0, 0, 1), 2), False)
sketch39.addConstraint([
    Sketcher.Constraint("Diameter", 0, 4.0),
    Sketcher.Constraint("DistanceX", -1, 1, 0, 3, 25.0),
    Sketcher.Constraint("DistanceY", 0, 3, -1, 1, 275.0),
])
pocket38 = body.newObject("PartDesign::Pocket", "Pocket037")
pocket38.Profile = sketch39
pocket38.Type = "UpToFirst"

sketch40 = body.newObject("Sketcher::SketchObject", "Sketch039")
sketch40.AttachmentSupport = (doc.getObject("XY_Plane"), [""])
sketch40.MapMode = "FlatFace"
sketch40.AttachmentOffset = App.Placement(V(0, 0, 8), App.Rotation())
sketch40.addGeometry(Part.Circle(V(-25, -275, 0), V(0, 0, 1), 2), False)
sketch40.addConstraint([
    Sketcher.Constraint("Diameter", 0, 4.0),
    Sketcher.Constraint("DistanceX", 0, 3, -1, 1, 25.0),
    Sketcher.Constraint("DistanceY", 0, 3, -1, 1, 275.0),
])
pocket39 = body.newObject("PartDesign::Pocket", "Pocket038")
pocket39.Profile = sketch40
pocket39.Type = "UpToFirst"

sketch41 = body.newObject("Sketcher::SketchObject", "Sketch040")
sketch41.AttachmentSupport = (doc.getObject("XY_Plane"), [""])
sketch41.MapMode = "FlatFace"
sketch41.AttachmentOffset = App.Placement(V(0, 0, 8), App.Rotation())
sketch41.addGeometry(Part.Circle(V(-75, -275, 0), V(0, 0, 1), 2), False)
sketch41.addConstraint([
    Sketcher.Constraint("Diameter", 0, 4.0),
    Sketcher.Constraint("DistanceX", 0, 3, -1, 1, 75.0),
    Sketcher.Constraint("DistanceY", 0, 3, -1, 1, 275.0),
])
pocket40 = body.newObject("PartDesign::Pocket", "Pocket039")
pocket40.Profile = sketch41
pocket40.Type = "UpToFirst"

sketch42 = body.newObject("Sketcher::SketchObject", "Sketch041")
sketch42.AttachmentSupport = (doc.getObject("XY_Plane"), [""])
sketch42.MapMode = "FlatFace"
sketch42.AttachmentOffset = App.Placement(V(0, 0, 8), App.Rotation())
sketch42.addGeometry(Part.Circle(V(-125, -275, 0), V(0, 0, 1), 2), False)
sketch42.addConstraint([
    Sketcher.Constraint("Diameter", 0, 4.0),
    Sketcher.Constraint("DistanceX", 0, 3, -1, 1, 125.0),
    Sketcher.Constraint("DistanceY", 0, 3, -1, 1, 275.0),
])
pocket41 = body.newObject("PartDesign::Pocket", "Pocket040")
pocket41.Profile = sketch42
pocket41.Type = "UpToFirst"

sketch43 = body.newObject("Sketcher::SketchObject", "Sketch042")
sketch43.AttachmentSupport = (doc.getObject("XY_Plane"), [""])
sketch43.MapMode = "FlatFace"
sketch43.AttachmentOffset = App.Placement(V(0, 0, 8), App.Rotation())
sketch43.addGeometry(Part.Circle(V(-175, -275, 0), V(0, 0, 1), 2), False)
sketch43.addConstraint([
    Sketcher.Constraint("Diameter", 0, 4.0),
    Sketcher.Constraint("DistanceX", 0, 3, -1, 1, 175.0),
    Sketcher.Constraint("DistanceY", 0, 3, -1, 1, 275.0),
])
pocket42 = body.newObject("PartDesign::Pocket", "Pocket041")
pocket42.Profile = sketch43
pocket42.Type = "UpToFirst"

doc.recompute()
